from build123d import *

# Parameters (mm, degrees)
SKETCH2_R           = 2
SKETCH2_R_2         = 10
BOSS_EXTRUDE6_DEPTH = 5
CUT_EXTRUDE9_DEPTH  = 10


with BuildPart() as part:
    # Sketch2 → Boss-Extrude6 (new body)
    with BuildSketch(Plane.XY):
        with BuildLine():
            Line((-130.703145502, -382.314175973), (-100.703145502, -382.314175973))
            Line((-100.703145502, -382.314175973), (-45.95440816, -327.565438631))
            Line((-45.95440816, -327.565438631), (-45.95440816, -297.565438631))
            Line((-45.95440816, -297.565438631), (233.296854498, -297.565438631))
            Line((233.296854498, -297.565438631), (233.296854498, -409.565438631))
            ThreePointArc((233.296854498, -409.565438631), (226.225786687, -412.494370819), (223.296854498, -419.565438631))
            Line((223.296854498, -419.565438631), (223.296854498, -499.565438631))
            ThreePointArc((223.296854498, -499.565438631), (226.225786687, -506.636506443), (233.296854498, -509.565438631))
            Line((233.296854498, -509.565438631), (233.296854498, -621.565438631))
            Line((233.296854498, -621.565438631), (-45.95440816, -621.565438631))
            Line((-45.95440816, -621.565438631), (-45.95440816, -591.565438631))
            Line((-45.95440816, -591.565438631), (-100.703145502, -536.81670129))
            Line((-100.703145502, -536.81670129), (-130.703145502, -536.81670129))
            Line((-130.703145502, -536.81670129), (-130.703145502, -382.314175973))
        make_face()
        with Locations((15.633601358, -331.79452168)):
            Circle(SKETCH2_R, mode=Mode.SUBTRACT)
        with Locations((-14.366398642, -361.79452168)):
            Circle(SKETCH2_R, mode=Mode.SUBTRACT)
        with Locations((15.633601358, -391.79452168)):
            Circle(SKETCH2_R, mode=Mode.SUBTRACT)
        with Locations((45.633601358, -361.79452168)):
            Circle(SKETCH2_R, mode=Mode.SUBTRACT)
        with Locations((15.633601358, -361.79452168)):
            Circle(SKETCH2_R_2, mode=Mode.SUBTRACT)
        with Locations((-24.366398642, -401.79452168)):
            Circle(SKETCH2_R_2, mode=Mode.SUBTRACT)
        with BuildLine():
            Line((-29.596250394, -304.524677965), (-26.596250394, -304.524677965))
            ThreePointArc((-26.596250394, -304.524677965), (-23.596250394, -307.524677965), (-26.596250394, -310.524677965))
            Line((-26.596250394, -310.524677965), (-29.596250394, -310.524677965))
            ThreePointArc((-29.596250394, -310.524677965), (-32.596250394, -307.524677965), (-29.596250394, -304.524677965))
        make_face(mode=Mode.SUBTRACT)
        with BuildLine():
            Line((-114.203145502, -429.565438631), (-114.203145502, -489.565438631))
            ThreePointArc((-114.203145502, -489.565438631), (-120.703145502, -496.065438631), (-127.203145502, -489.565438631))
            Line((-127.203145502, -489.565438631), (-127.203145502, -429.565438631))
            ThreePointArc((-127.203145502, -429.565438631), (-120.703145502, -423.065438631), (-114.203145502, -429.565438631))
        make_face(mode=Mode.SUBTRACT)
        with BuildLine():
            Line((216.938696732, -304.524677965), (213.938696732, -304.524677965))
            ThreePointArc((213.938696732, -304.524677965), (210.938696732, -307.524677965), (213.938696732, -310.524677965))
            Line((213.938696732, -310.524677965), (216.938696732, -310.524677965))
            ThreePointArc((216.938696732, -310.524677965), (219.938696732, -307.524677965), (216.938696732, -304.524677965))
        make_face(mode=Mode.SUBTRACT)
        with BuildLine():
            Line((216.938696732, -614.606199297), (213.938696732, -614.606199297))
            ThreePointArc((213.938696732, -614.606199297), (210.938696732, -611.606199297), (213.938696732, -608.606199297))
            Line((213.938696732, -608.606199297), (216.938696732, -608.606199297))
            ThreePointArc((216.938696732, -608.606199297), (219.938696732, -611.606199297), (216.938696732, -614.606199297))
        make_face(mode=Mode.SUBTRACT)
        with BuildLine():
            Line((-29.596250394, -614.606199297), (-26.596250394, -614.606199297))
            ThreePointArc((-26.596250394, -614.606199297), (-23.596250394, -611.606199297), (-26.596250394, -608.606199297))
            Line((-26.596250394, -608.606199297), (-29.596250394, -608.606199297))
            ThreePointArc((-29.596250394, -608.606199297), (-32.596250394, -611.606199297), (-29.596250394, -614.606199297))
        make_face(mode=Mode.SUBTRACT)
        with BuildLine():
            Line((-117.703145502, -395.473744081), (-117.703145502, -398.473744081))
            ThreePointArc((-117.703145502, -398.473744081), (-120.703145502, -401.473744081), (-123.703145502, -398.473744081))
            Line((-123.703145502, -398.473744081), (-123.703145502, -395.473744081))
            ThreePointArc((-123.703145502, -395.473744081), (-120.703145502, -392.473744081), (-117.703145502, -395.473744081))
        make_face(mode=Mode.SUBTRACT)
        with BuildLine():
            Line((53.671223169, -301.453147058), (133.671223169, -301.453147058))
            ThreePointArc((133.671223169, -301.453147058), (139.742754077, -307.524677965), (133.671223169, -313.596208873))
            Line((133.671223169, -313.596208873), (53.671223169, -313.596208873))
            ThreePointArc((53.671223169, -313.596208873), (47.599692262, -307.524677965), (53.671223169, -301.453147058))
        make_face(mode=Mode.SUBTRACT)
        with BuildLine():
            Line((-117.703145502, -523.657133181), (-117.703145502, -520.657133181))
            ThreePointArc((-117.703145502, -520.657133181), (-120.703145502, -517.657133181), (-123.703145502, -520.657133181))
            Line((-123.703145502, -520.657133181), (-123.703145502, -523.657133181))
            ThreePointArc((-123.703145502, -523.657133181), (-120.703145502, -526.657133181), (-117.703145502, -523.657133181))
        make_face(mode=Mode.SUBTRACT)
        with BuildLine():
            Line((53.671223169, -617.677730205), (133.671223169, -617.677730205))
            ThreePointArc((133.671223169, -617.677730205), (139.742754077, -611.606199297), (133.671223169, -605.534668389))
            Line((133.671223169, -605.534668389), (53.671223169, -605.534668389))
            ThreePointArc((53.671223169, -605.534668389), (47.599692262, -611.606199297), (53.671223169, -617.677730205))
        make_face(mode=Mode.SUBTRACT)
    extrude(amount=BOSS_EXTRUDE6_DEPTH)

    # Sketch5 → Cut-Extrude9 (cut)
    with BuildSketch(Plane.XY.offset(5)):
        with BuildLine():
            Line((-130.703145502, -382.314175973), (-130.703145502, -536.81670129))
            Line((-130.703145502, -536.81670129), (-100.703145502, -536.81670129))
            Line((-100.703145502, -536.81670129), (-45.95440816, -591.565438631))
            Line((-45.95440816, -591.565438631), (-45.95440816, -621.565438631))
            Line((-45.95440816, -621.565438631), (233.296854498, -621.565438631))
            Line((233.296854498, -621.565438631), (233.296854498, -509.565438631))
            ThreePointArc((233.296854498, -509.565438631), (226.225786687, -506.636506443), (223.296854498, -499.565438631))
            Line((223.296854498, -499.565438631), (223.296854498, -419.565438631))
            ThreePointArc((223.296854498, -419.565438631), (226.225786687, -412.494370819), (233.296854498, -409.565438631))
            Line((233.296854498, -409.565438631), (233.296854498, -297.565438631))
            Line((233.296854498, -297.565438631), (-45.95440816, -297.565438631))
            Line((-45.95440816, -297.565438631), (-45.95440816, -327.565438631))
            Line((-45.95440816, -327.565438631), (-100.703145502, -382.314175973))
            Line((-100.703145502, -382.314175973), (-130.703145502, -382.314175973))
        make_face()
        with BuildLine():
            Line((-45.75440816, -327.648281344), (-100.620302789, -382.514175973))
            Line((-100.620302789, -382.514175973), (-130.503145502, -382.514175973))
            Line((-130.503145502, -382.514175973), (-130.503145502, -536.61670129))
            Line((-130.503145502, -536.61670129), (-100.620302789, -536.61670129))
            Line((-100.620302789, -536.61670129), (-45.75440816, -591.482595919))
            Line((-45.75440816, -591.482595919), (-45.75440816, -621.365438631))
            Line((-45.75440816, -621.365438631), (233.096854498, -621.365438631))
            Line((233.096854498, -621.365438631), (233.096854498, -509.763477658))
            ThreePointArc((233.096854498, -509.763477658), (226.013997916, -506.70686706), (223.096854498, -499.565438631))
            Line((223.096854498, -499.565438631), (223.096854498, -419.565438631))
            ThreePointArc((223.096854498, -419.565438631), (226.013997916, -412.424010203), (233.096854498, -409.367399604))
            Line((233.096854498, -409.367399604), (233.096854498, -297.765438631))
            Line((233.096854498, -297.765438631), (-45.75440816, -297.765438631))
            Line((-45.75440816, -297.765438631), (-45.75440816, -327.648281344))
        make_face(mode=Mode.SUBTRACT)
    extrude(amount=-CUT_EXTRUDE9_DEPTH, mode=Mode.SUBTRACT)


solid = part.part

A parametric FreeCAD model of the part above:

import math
import FreeCAD as App
import Part
import Sketcher

doc = App.newDocument("Part")
params = doc.addObject("Spreadsheet::Sheet", "Params")
for row, (alias, value) in enumerate([
    ("sketch1_diameter", "4 mm"),
    ("sketch1_diameter2", "20 mm"),
    ("sketch1_radius", "3 mm"),
    ("sketch1_radius2", "6.5 mm"),
    ("sketch1_width", "30 mm"),
    ("pad1_length", "5 mm"),
    ("sketch2_radius", "10 mm"),
    ("sketch2_radius2", "10.2 mm"),
    ("sketch2_width", "30 mm"),
    ("sketch2_height", "112 mm"),
    ("sketch2_height2", "80 mm"),
    ("pocket1_length", "10 mm"),
], start=1):
    params.set(f"A{row}", alias)
    params.set(f"B{row}", "=" + value)
    params.setAlias(f"B{row}", alias)

body = doc.addObject("PartDesign::Body", "Body")

# Sketch on XY plane
sketch1 = doc.addObject("Sketcher::SketchObject", "Sketch")
body.addObject(sketch1)
sketch1.AttachmentSupport = (doc.XY_Plane, [""])
sketch1.MapMode = "FlatFace"
sketch1.addGeometry(Part.LineSegment(App.Vector(-100.703146, -382.314176, 0), App.Vector(-130.703146, -382.314176, 0)), False)
sketch1.addGeometry(Part.LineSegment(App.Vector(-130.703146, -382.314176, 0), App.Vector(-130.703146, -536.816701, 0)), False)
sketch1.addGeometry(Part.LineSegment(App.Vector(-130.703146, -536.816701, 0), App.Vector(-100.703146, -536.816701, 0)), False)
sketch1.addGeometry(Part.LineSegment(App.Vector(-100.703146, -536.816701, 0), App.Vector(-45.954408, -591.565439, 0)), False)
sketch1.addGeometry(Part.LineSegment(App.Vector(-45.954408, -591.565439, 0), App.Vector(-45.954408, -621.565439, 0)), False)
sketch1.addGeometry(Part.LineSegment(App.Vector(-45.954408, -621.565439, 0), App.Vector(233.296854, -621.565439, 0)), False)
sketch1.addGeometry(Part.LineSegment(App.Vector(233.296854, -621.565439, 0), App.Vector(233.296854, -509.565439, 0)), False)
sketch1.addGeometry(Part.ArcOfCircle(Part.Circle(App.Vector(233.296854, -499.565439, 0), App.Vector(0, 0, 1), 10), math.radians(-180), math.radians(-90)), False)
sketch1.addGeometry(Part.LineSegment(App.Vector(223.296854, -499.565439, 0), App.Vector(223.296854, -419.565439, 0)), False)
sketch1.addGeometry(Part.ArcOfCircle(Part.Circle(App.Vector(233.296854, -419.565439, 0), App.Vector(0, 0, 1), 10), math.radians(90), math.radians(180)), False)
sketch1.addGeometry(Part.LineSegment(App.Vector(233.296854, -409.565439, 0), App.Vector(233.296854, -297.565439, 0)), False)
sketch1.addGeometry(Part.LineSegment(App.Vector(233.296854, -297.565439, 0), App.Vector(-45.954408, -297.565439, 0)), False)
sketch1.addGeometry(Part.LineSegment(App.Vector(-45.954408, -297.565439, 0), App.Vector(-45.954408, -327.565439, 0)), False)
sketch1.addGeometry(Part.LineSegment(App.Vector(-45.954408, -327.565439, 0), App.Vector(-100.703146, -382.314176, 0)), False)
sketch1.addGeometry(Part.LineSegment(App.Vector(216.938697, -614.606199, 0), App.Vector(213.938697, -614.606199, 0)), False)
sketch1.addGeometry(Part.ArcOfCircle(Part.Circle(App.Vector(213.938697, -611.606199, 0), App.Vector(0, 0, 1), 3), math.radians(90), math.radians(270)), False)
sketch1.addGeometry(Part.LineSegment(App.Vector(213.938697, -608.606199, 0), App.Vector(216.938697, -608.606199, 0)), False)
sketch1.addGeometry(Part.ArcOfCircle(Part.Circle(App.Vector(216.938697, -611.606199, 0), App.Vector(0, 0, 1), 3), math.radians(-90), math.radians(90)), False)
sketch1.addGeometry(Part.ArcOfCircle(Part.Circle(App.Vector(53.671223, -611.606199, 0), App.Vector(0, 0, 1), 6.071531), math.radians(90), math.radians(270)), False)
sketch1.addGeometry(Part.LineSegment(App.Vector(53.671223, -605.534668, 0), App.Vector(133.671223, -605.534668, 0)), False)
sketch1.addGeometry(Part.ArcOfCircle(Part.Circle(App.Vector(133.671223, -611.606199, 0), App.Vector(0, 0, 1), 6.071531), math.radians(-90), math.radians(90)), False)
sketch1.addGeometry(Part.LineSegment(App.Vector(133.671223, -617.67773, 0), App.Vector(53.671223, -617.67773, 0)), False)
sketch1.addGeometry(Part.ArcOfCircle(Part.Circle(App.Vector(-29.59625, -611.606199, 0), App.Vector(0, 0, 1), 3), math.radians(90), math.radians(270)), False)
sketch1.addGeometry(Part.LineSegment(App.Vector(-29.59625, -608.606199, 0), App.Vector(-26.59625, -608.606199, 0)), False)
sketch1.addGeometry(Part.ArcOfCircle(Part.Circle(App.Vector(-26.59625, -611.606199, 0), App.Vector(0, 0, 1), 3), math.radians(-90), math.radians(90)), False)
sketch1.addGeometry(Part.LineSegment(App.Vector(-26.59625, -614.606199, 0), App.Vector(-29.59625, -614.606199, 0)), False)
sketch1.addGeometry(Part.ArcOfCircle(Part.Circle(App.Vector(-120.703146, -523.657133, 0), App.Vector(0, 0, 1), 3), math.radians(180), math.radians(360)), False)
sketch1.addGeometry(Part.LineSegment(App.Vector(-123.703146, -523.657133, 0), App.Vector(-123.703146, -520.657133, 0)), False)
sketch1.addGeometry(Part.ArcOfCircle(Part.Circle(App.Vector(-120.703146, -520.657133, 0), App.Vector(0, 0, 1), 3), math.radians(0), math.radians(180)), False)
sketch1.addGeometry(Part.LineSegment(App.Vector(-117.703146, -520.657133, 0), App.Vector(-117.703146, -523.657133, 0)), False)
sketch1.addGeometry(Part.ArcOfCircle(Part.Circle(App.Vector(216.938697, -307.524678, 0), App.Vector(0, 0, 1), 3), math.radians(-90), math.radians(90)), False)
sketch1.addGeometry(Part.LineSegment(App.Vector(216.938697, -310.524678, 0), App.Vector(213.938697, -310.524678, 0)), False)
sketch1.addGeometry(Part.ArcOfCircle(Part.Circle(App.Vector(213.938697, -307.524678, 0), App.Vector(0, 0, 1), 3), math.radians(90), math.radians(270)), False)
sketch1.addGeometry(Part.LineSegment(App.Vector(213.938697, -304.524678, 0), App.Vector(216.938697, -304.524678, 0)), False)
sketch1.addGeometry(Part.LineSegment(App.Vector(53.671223, -301.453147, 0), App.Vector(133.671223, -301.453147, 0)), False)
sketch1.addGeometry(Part.ArcOfCircle(Part.Circle(App.Vector(133.671223, -307.524678, 0), App.Vector(0, 0, 1), 6.071531), math.radians(-90), math.radians(90)), False)
sketch1.addGeometry(Part.LineSegment(App.Vector(133.671223, -313.596209, 0), App.Vector(53.671223, -313.596209, 0)), False)
sketch1.addGeometry(Part.ArcOfCircle(Part.Circle(App.Vector(53.671223, -307.524678, 0), App.Vector(0, 0, 1), 6.071531), math.radians(90), math.radians(270)), False)
sketch1.addGeometry(Part.Circle(App.Vector(15.633601, -391.794522, 0), App.Vector(0, 0, 1), 2), False)
sketch1.addGeometry(Part.Circle(App.Vector(-24.366399, -401.794522, 0), App.Vector(0, 0, 1), 10), False)
sketch1.addGeometry(Part.LineSegment(App.Vector(-114.203146, -429.565439, 0), App.Vector(-114.203146, -489.565439, 0)), False)
sketch1.addGeometry(Part.ArcOfCircle(Part.Circle(App.Vector(-120.703146, -489.565439, 0), App.Vector(0, 0, 1), 6.5), math.radians(180), math.radians(360)), False)
sketch1.addGeometry(Part.LineSegment(App.Vector(-127.203146, -489.565439, 0), App.Vector(-127.203146, -429.565439, 0)), False)
sketch1.addGeometry(Part.ArcOfCircle(Part.Circle(App.Vector(-120.703146, -429.565439, 0), App.Vector(0, 0, 1), 6.5), math.radians(0), math.radians(180)), False)
sketch1.addGeometry(Part.LineSegment(App.Vector(-117.703146, -395.473744, 0), App.Vector(-117.703146, -398.473744, 0)), False)
sketch1.addGeometry(Part.ArcOfCircle(Part.Circle(App.Vector(-120.703146, -398.473744, 0), App.Vector(0, 0, 1), 3), math.radians(180), math.radians(360)), False)
sketch1.addGeometry(Part.LineSegment(App.Vector(-123.703146, -398.473744, 0), App.Vector(-123.703146, -395.473744, 0)), False)
sketch1.addGeometry(Part.ArcOfCircle(Part.Circle(App.Vector(-120.703146, -395.473744, 0), App.Vector(0, 0, 1), 3), math.radians(0), math.radians(180)), False)
sketch1.addGeometry(Part.Circle(App.Vector(45.633601, -361.794522, 0), App.Vector(0, 0, 1), 2), False)
sketch1.addGeometry(Part.Circle(App.Vector(15.633601, -361.794522, 0), App.Vector(0, 0, 1), 10), False)
sketch1.addGeometry(Part.Circle(App.Vector(-14.366399, -361.794522, 0), App.Vector(0, 0, 1), 2), False)
sketch1.addGeometry(Part.Circle(App.Vector(15.633601, -331.794522, 0), App.Vector(0, 0, 1), 2), False)
sketch1.addGeometry(Part.LineSegment(App.Vector(-29.59625, -304.524678, 0), App.Vector(-26.59625, -304.524678, 0)), False)
sketch1.addGeometry(Part.ArcOfCircle(Part.Circle(App.Vector(-26.59625, -307.524678, 0), App.Vector(0, 0, 1), 3), math.radians(-90), math.radians(90)), False)
sketch1.addGeometry(Part.LineSegment(App.Vector(-26.59625, -310.524678, 0), App.Vector(-29.59625, -310.524678, 0)), False)
sketch1.addGeometry(Part.ArcOfCircle(Part.Circle(App.Vector(-29.59625, -307.524678, 0), App.Vector(0, 0, 1), 3), math.radians(90), math.radians(270)), False)
sketch1.addConstraint(Sketcher.Constraint("Coincident", 0, 2, 1, 1))
sketch1.addConstraint(Sketcher.Constraint("Coincident", 1, 2, 2, 1))
sketch1.addConstraint(Sketcher.Constraint("Coincident", 2, 2, 3, 1))
sketch1.addConstraint(Sketcher.Constraint("Coincident", 3, 2, 4, 1))
sketch1.addConstraint(Sketcher.Constraint("Coincident", 4, 2, 5, 1))
sketch1.addConstraint(Sketcher.Constraint("Coincident", 5, 2, 6, 1))
sketch1.addConstraint(Sketcher.Constraint("Coincident", 6, 2, 7, 2))
sketch1.addConstraint(Sketcher.Constraint("Tangent", 7, 1, 8, 1))
sketch1.addConstraint(Sketcher.Constraint("Tangent", 8, 2, 9, 2))
sketch1.addConstraint(Sketcher.Constraint("Coincident", 9, 1, 10, 1))
sketch1.addConstraint(Sketcher.Constraint("Coincident", 10, 2, 11, 1))
sketch1.addConstraint(Sketcher.Constraint("Coincident", 11, 2, 12, 1))
sketch1.addConstraint(Sketcher.Constraint("Coincident", 12, 2, 13, 1))
sketch1.addConstraint(Sketcher.Constraint("Coincident", 13, 2, 0, 1))
sketch1.addConstraint(Sketcher.Constraint("Tangent", 14, 2, 15, 2))
sketch1.addConstraint(Sketcher.Constraint("Tangent", 15, 1, 16, 1))
sketch1.addConstraint(Sketcher.Constraint("Tangent", 16, 2, 17, 2))
sketch1.addConstraint(Sketcher.Constraint("Tangent", 17, 1, 14, 1))
sketch1.addConstraint(Sketcher.Constraint("Tangent", 18, 1, 19, 1))
sketch1.addConstraint(Sketcher.Constraint("Tangent", 19, 2, 20, 2))
sketch1.addConstraint(Sketcher.Constraint("Tangent", 20, 1, 21, 1))
sketch1.addConstraint(Sketcher.Constraint("Tangent", 21, 2, 18, 2))
sketch1.addConstraint(Sketcher.Constraint("Tangent", 22, 1, 23, 1))
sketch1.addConstraint(Sketcher.Constraint("Tangent", 23, 2, 24, 2))
sketch1.addConstraint(Sketcher.Constraint("Tangent", 24, 1, 25, 1))
sketch1.addConstraint(Sketcher.Constraint("Tangent", 25, 2, 22, 2))
sketch1.addConstraint(Sketcher.Constraint("Tangent", 26, 1, 27, 1))
sketch1.addConstraint(Sketcher.Constraint("Tangent", 27, 2, 28, 2))
sketch1.addConstraint(Sketcher.Constraint("Tangent", 28, 1, 29, 1))
sketch1.addConstraint(Sketcher.Constraint("Tangent", 29, 2, 26, 2))
sketch1.addConstraint(Sketcher.Constraint("Tangent", 30, 1, 31, 1))
sketch1.addConstraint(Sketcher.Constraint("Tangent", 31, 2, 32, 2))
sketch1.addConstraint(Sketcher.Constraint("Tangent", 32, 1, 33, 1))
sketch1.addConstraint(Sketcher.Constraint("Tangent", 33, 2, 30, 2))
sketch1.addConstraint(Sketcher.Constraint("Tangent", 34, 2, 35, 2))
sketch1.addConstraint(Sketcher.Constraint("Tangent", 35, 1, 36, 1))
sketch1.addConstraint(Sketcher.Constraint("Tangent", 36, 2, 37, 2))
sketch1.addConstraint(Sketcher.Constraint("Tangent", 37, 1, 34, 1))
sketch1.addConstraint(Sketcher.Constraint("Tangent", 40, 2, 41, 2))
sketch1.addConstraint(Sketcher.Constraint("Tangent", 41, 1, 42, 1))
sketch1.addConstraint(Sketcher.Constraint("Tangent", 42, 2, 43, 2))
sketch1.addConstraint(Sketcher.Constraint("Tangent", 43, 1, 40, 1))
sketch1.addConstraint(Sketcher.Constraint("Tangent", 44, 2, 45, 2))
sketch1.addConstraint(Sketcher.Constraint("Tangent", 45, 1, 46, 1))
sketch1.addConstraint(Sketcher.Constraint("Tangent", 46, 2, 47, 2))
sketch1.addConstraint(Sketcher.Constraint("Tangent", 47, 1, 44, 1))
sketch1.addConstraint(Sketcher.Constraint("Tangent", 52, 2, 53, 2))
sketch1.addConstraint(Sketcher.Constraint("Tangent", 53, 1, 54, 1))
sketch1.addConstraint(Sketcher.Constraint("Tangent", 54, 2, 55, 2))
sketch1.addConstraint(Sketcher.Constraint("Tangent", 55, 1, 52, 1))
sketch1.addConstraint(Sketcher.Constraint("Horizontal", 0))
sketch1.addConstraint(Sketcher.Constraint("Vertical", 1))
sketch1.addConstraint(Sketcher.Constraint("Horizontal", 2))
sketch1.addConstraint(Sketcher.Constraint("Vertical", 4))
sketch1.addConstraint(Sketcher.Constraint("Horizontal", 5))
sketch1.addConstraint(Sketcher.Constraint("Vertical", 6))
sketch1.addConstraint(Sketcher.Constraint("Vertical", 8))
sketch1.addConstraint(Sketcher.Constraint("Vertical", 10))
sketch1.addConstraint(Sketcher.Constraint("Horizontal", 11))
sketch1.addConstraint(Sketcher.Constraint("Vertical", 12))
sketch1.addConstraint(Sketcher.Constraint("Horizontal", 14))
sketch1.addConstraint(Sketcher.Constraint("Horizontal", 16))
sketch1.addConstraint(Sketcher.Constraint("Horizontal", 19))
sketch1.addConstraint(Sketcher.Constraint("Horizontal", 21))
sketch1.addConstraint(Sketcher.Constraint("Horizontal", 23))
sketch1.addConstraint(Sketcher.Constraint("Horizontal", 25))
sketch1.addConstraint(Sketcher.Constraint("Vertical", 27))
sketch1.addConstraint(Sketcher.Constraint("Vertical", 29))
sketch1.addConstraint(Sketcher.Constraint("Horizontal", 31))
sketch1.addConstraint(Sketcher.Constraint("Horizontal", 33))
sketch1.addConstraint(Sketcher.Constraint("Horizontal", 34))
sketch1.addConstraint(Sketcher.Constraint("Horizontal", 36))
sketch1.addConstraint(Sketcher.Constraint("Vertical", 40))
sketch1.addConstraint(Sketcher.Constraint("Vertical", 42))
sketch1.addConstraint(Sketcher.Constraint("Vertical", 44))
sketch1.addConstraint(Sketcher.Constraint("Vertical", 46))
sketch1.addConstraint(Sketcher.Constraint("Horizontal", 52))
sketch1.addConstraint(Sketcher.Constraint("Horizontal", 54))
sketch1.addConstraint(Sketcher.Constraint("Equal", 7, 9))
sketch1.addConstraint(Sketcher.Constraint("Equal", 17, 22))
sketch1.addConstraint(Sketcher.Constraint("Equal", 24, 26))
sketch1.addConstraint(Sketcher.Constraint("Equal", 28, 30))
sketch1.addConstraint(Sketcher.Constraint("Equal", 20, 35))
sketch1.addConstraint(Sketcher.Constraint("Equal", 9, 39))
sketch1.addConstraint(Sketcher.Constraint("Equal", 32, 45))
sketch1.addConstraint(Sketcher.Constraint("Equal", 38, 48))
sketch1.addConstraint(Sketcher.Constraint("Equal", 39, 49))
sketch1.addConstraint(Sketcher.Constraint("Equal", 48, 50))
sketch1.addConstraint(Sketcher.Constraint("Equal", 50, 51))
sketch1.addConstraint(Sketcher.Constraint("Equal", 47, 53))
sketch1.addConstraint(Sketcher.Constraint("Perpendicular", 3, 13))
sketch1.addConstraint(Sketcher.Constraint("Horizontal", 17, 3, 18, 3))
sketch1.addConstraint(Sketcher.Constraint("Horizontal", 20, 3, 22, 3))
sketch1.addConstraint(Sketcher.Constraint("Horizontal", 32, 3, 35, 3))
sketch1.addConstraint(Sketcher.Constraint("Horizontal", 48, 3, 49, 3))
sketch1.addConstraint(Sketcher.Constraint("Horizontal", 49, 3, 50, 3))
sketch1.addConstraint(Sketcher.Constraint("Horizontal", 37, 3, 53, 3))
sketch1.addConstraint(Sketcher.Constraint("Vertical", 17, 3, 30, 3))
sketch1.addConstraint(Sketcher.Constraint("Vertical", 15, 3, 32, 3))
sketch1.addConstraint(Sketcher.Constraint("Vertical", 20, 3, 35, 3))
sketch1.addConstraint(Sketcher.Constraint("Vertical", 18, 3, 37, 3))
sketch1.addConstraint(Sketcher.Constraint("Vertical", 28, 3, 41, 3))
sketch1.addConstraint(Sketcher.Constraint("Vertical", 43, 3, 45, 3))
sketch1.addConstraint(Sketcher.Constraint("Vertical", 38, 3, 49, 3))
sketch1.addConstraint(Sketcher.Constraint("Vertical", 49, 3, 51, 3))
sketch1.addConstraint(Sketcher.Constraint("Vertical", 24, 3, 53, 3))
sketch1.addConstraint(Sketcher.Constraint("Vertical", 22, 3, 55, 3))
sketch1.addConstraint(Sketcher.Constraint("Vertical", 9, 3, 5, 2))
sketch1.addConstraint(Sketcher.Constraint("Vertical", 6, 2, 9, 1))
sketch1.addConstraint(Sketcher.Constraint("Vertical", 4, 2, 11, 2))
sketch1.addConstraint(Sketcher.Constraint("Vertical", 2, 2, 13, 2))
sketch1.addConstraint(Sketcher.Constraint("Equal", 16, 23))
sketch1.addConstraint(Sketcher.Constraint("Equal", 2, 4))
sketch1.addConstraint(Sketcher.Constraint("Equal", 36, 8))
sketch1.addConstraint(Sketcher.Constraint("Equal", 6, 10))
sketch1.addConstraint(Sketcher.Constraint("Equal", 4, 12))
sketch1.addConstraint(Sketcher.Constraint("Equal", 54, 27))
sketch1.addConstraint(Sketcher.Constraint("Equal", 29, 44))
sketch1.addConstraint(Sketcher.Constraint("Equal", 3, 13))
sketch1.addConstraint(Sketcher.Constraint("Diameter", 38, 4.0))
sketch1.addConstraint(Sketcher.Constraint("Diameter", 39, 20.0))
sketch1.addConstraint(Sketcher.Constraint("Radius", 15, 3.0))
sketch1.addConstraint(Sketcher.Constraint("Radius", 41, 6.5))
sketch1.addConstraint(Sketcher.Constraint("DistanceX", 0, 2, 0, 1, 30.0))
sketch1.addConstraint(Sketcher.Constraint("DistanceX", 14, 2, 14, 1, 3.0))
sketch1.addConstraint(Sketcher.Constraint("DistanceX", 19, 1, 19, 2, 80.0))
sketch1.addConstraint(Sketcher.Constraint("DistanceY", 6, 1, 6, 2, 112.0))
sketch1.addConstraint(Sketcher.Constraint("DistanceY", 40, 2, 40, 1, 60.0))
sketch1.addConstraint(Sketcher.Constraint("Radius", 18, 6.071531))
sketch1.addConstraint(Sketcher.Constraint("DistanceY", 15, 3, -1, 1, 611.606199))
sketch1.addConstraint(Sketcher.Constraint("DistanceX", -1, 1, 38, 3, 15.633601))
sketch1.addConstraint(Sketcher.Constraint("DistanceX", 39, 3, -1, 1, 24.366399))
sketch1.addConstraint(Sketcher.Constraint("DistanceX", -1, 1, 48, 3, 45.633601))
sketch1.addConstraint(Sketcher.Constraint("DistanceX", 50, 3, -1, 1, 14.366399))
sketch1.addConstraint(Sketcher.Constraint("DistanceY", 1, 2, -1, 1, 536.816701))
sketch1.addConstraint(Sketcher.Constraint("DistanceX", 5, 1, 5, 2, 279.251263))
sketch1.addConstraint(Sketcher.Constraint("DistanceY", 1, 2, 1, 1, 154.502525))
sketch1.addConstraint(Sketcher.Constraint("DistanceX", 22, 3, -1, 1, 29.59625))
sketch1.addConstraint(Sketcher.Constraint("DistanceY", 38, 3, -1, 1, 391.794522))
sketch1.addConstraint(Sketcher.Constraint("DistanceY", 39, 3, -1, 1, 401.794522))
sketch1.addConstraint(Sketcher.Constraint("DistanceY", 41, 3, -1, 1, 489.565439))
sketch1.addConstraint(Sketcher.Constraint("DistanceY", 48, 3, -1, 1, 361.794522))
sketch1.addConstraint(Sketcher.Constraint("DistanceY", 51, 3, -1, 1, 331.794522))
sketch1.addConstraint(Sketcher.Constraint("DistanceX", 3, 2, -1, 1, 45.954408))
sketch1.addConstraint(Sketcher.Constraint("DistanceY", 35, 1, -1, 1, 313.596209))
sketch1.addConstraint(Sketcher.Constraint("DistanceX", -1, 1, 15, 3, 213.938697))
sketch1.addConstraint(Sketcher.Constraint("DistanceX", -1, 1, 18, 3, 53.671223))
sketch1.addConstraint(Sketcher.Constraint("DistanceX", 26, 3, -1, 1, 120.703146))
sketch1.addConstraint(Sketcher.Constraint("DistanceY", 26, 3, -1, 1, 523.657133))
sketch1.addConstraint(Sketcher.Constraint("DistanceY", 45, 3, -1, 1, 398.473744))
sketch1.setExpression("Constraints[119]", "Params.sketch1_diameter")
sketch1.setExpression("Constraints[120]", "Params.sketch1_diameter2")
sketch1.setExpression("Constraints[121]", "Params.sketch1_radius")
sketch1.setExpression("Constraints[122]", "Params.sketch1_radius2")
sketch1.setExpression("Constraints[123]", "Params.sketch1_width")
pad1 = doc.addObject("PartDesign::Pad", "Pad")
body.addObject(pad1)
pad1.Profile = sketch1
pad1.setExpression("Length", "Params.pad1_length")

# Sketch on XY plane
sketch2 = doc.addObject("Sketcher::SketchObject", "Sketch001")
body.addObject(sketch2)
sketch2.AttachmentSupport = (doc.XY_Plane, [""])
sketch2.MapMode = "FlatFace"
sketch2.AttachmentOffset = App.Placement(App.Vector(0, 0, 5), App.Rotation())
sketch2.addGeometry(Part.LineSegment(App.Vector(-130.703146, -382.314176, 0), App.Vector(-130.703146, -536.816701, 0)), False)
sketch2.addGeometry(Part.LineSegment(App.Vector(-130.703146, -536.816701, 0), App.Vector(-100.703146, -536.816701, 0)), False)
sketch2.addGeometry(Part.LineSegment(App.Vector(-100.703146, -536.816701, 0), App.Vector(-45.954408, -591.565439, 0)), False)
sketch2.addGeometry(Part.LineSegment(App.Vector(-45.954408, -591.565439, 0), App.Vector(-45.954408, -621.565439, 0)), False)
sketch2.addGeometry(Part.LineSegment(App.Vector(-45.954408, -621.565439, 0), App.Vector(233.296854, -621.565439, 0)), False)
sketch2.addGeometry(Part.LineSegment(App.Vector(233.296854, -621.565439, 0), App.Vector(233.296854, -509.565439, 0)), False)
sketch2.addGeometry(Part.ArcOfCircle(Part.Circle(App.Vector(233.296854, -499.565439, 0), App.Vector(0, 0, 1), 10), math.radians(-180), math.radians(-90)), False)
sketch2.addGeometry(Part.LineSegment(App.Vector(223.296854, -499.565439, 0), App.Vector(223.296854, -419.565439, 0)), False)
sketch2.addGeometry(Part.ArcOfCircle(Part.Circle(App.Vector(233.296854, -419.565439, 0), App.Vector(0, 0, 1), 10), math.radians(90), math.radians(180)), False)
sketch2.addGeometry(Part.LineSegment(App.Vector(233.296854, -409.565439, 0), App.Vector(233.296854, -297.565439, 0)), False)
sketch2.addGeometry(Part.LineSegment(App.Vector(233.296854, -297.565439, 0), App.Vector(-45.954408, -297.565439, 0)), False)
sketch2.addGeometry(Part.LineSegment(App.Vector(-45.954408, -297.565439, 0), App.Vector(-45.954408, -327.565439, 0)), False)
sketch2.addGeometry(Part.LineSegment(App.Vector(-45.954408, -327.565439, 0), App.Vector(-100.703146, -382.314176, 0)), False)
sketch2.addGeometry(Part.LineSegment(App.Vector(-100.703146, -382.314176, 0), App.Vector(-130.703146, -382.314176, 0)), False)
sketch2.addGeometry(Part.LineSegment(App.Vector(-100.620303, -382.514176, 0), App.Vector(-45.754408, -327.648281, 0)), False)
sketch2.addGeometry(Part.LineSegment(App.Vector(-45.754408, -327.648281, 0), App.Vector(-45.754408, -297.765439, 0)), False)
sketch2.addGeometry(Part.LineSegment(App.Vector(-45.754408, -297.765439, 0), App.Vector(233.096854, -297.765439, 0)), False)
sketch2.addGeometry(Part.LineSegment(App.Vector(233.096854, -297.765439, 0), App.Vector(233.096854, -409.3674, 0)), False)
sketch2.addGeometry(Part.ArcOfCircle(Part.Circle(App.Vector(233.296854, -419.565439, 0), App.Vector(0, 0, 1), 10.2), math.radians(91.123519), math.radians(180)), False)
sketch2.addGeometry(Part.LineSegment(App.Vector(223.096854, -419.565439, 0), App.Vector(223.096854, -499.565439, 0)), False)
sketch2.addGeometry(Part.ArcOfCircle(Part.Circle(App.Vector(233.296854, -499.565439, 0), App.Vector(0, 0, 1), 10.2), math.radians(180), math.radians(268.876481)), False)
sketch2.addGeometry(Part.LineSegment(App.Vector(233.096854, -509.763478, 0), App.Vector(233.096854, -621.365439, 0)), False)
sketch2.addGeometry(Part.LineSegment(App.Vector(233.096854, -621.365439, 0), App.Vector(-45.754408, -621.365439, 0)), False)
sketch2.addGeometry(Part.LineSegment(App.Vector(-45.754408, -621.365439, 0), App.Vector(-45.754408, -591.482596, 0)), False)
sketch2.addGeometry(Part.LineSegment(App.Vector(-45.754408, -591.482596, 0), App.Vector(-100.620303, -536.616701, 0)), False)
sketch2.addGeometry(Part.LineSegment(App.Vector(-100.620303, -536.616701, 0), App.Vector(-130.503146, -536.616701, 0)), False)
sketch2.addGeometry(Part.LineSegment(App.Vector(-130.503146, -536.616701, 0), App.Vector(-130.503146, -382.514176, 0)), False)
sketch2.addGeometry(Part.LineSegment(App.Vector(-130.503146, -382.514176, 0), App.Vector(-100.620303, -382.514176, 0)), False)
sketch2.addConstraint(Sketcher.Constraint("Coincident", 0, 2, 1, 1))
sketch2.addConstraint(Sketcher.Constraint("Coincident", 1, 2, 2, 1))
sketch2.addConstraint(Sketcher.Constraint("Coincident", 2, 2, 3, 1))
sketch2.addConstraint(Sketcher.Constraint("Coincident", 3, 2, 4, 1))
sketch2.addConstraint(Sketcher.Constraint("Coincident", 4, 2, 5, 1))
sketch2.addConstraint(Sketcher.Constraint("Coincident", 5, 2, 6, 2))
sketch2.addConstraint(Sketcher.Constraint("Tangent", 6, 1, 7, 1))
sketch2.addConstraint(Sketcher.Constraint("Tangent", 7, 2, 8, 2))
sketch2.addConstraint(Sketcher.Constraint("Coincident", 8, 1, 9, 1))
sketch2.addConstraint(Sketcher.Constraint("Coincident", 9, 2, 10, 1))
sketch2.addConstraint(Sketcher.Constraint("Coincident", 10, 2, 11, 1))
sketch2.addConstraint(Sketcher.Constraint("Coincident", 11, 2, 12, 1))
sketch2.addConstraint(Sketcher.Constraint("Coincident", 12, 2, 13, 1))
sketch2.addConstraint(Sketcher.Constraint("Coincident", 13, 2, 0, 1))
sketch2.addConstraint(Sketcher.Constraint("Coincident", 14, 2, 15, 1))
sketch2.addConstraint(Sketcher.Constraint("Coincident", 15, 2, 16, 1))
sketch2.addConstraint(Sketcher.Constraint("Coincident", 16, 2, 17, 1))
sketch2.addConstraint(Sketcher.Constraint("Coincident", 17, 2, 18, 1))
sketch2.addConstraint(Sketcher.Constraint("Tangent", 18, 2, 19, 1))
sketch2.addConstraint(Sketcher.Constraint("Tangent", 19, 2, 20, 1))
sketch2.addConstraint(Sketcher.Constraint("Coincident", 20, 2, 21, 1))
sketch2.addConstraint(Sketcher.Constraint("Coincident", 21, 2, 22, 1))
sketch2.addConstraint(Sketcher.Constraint("Coincident", 22, 2, 23, 1))
sketch2.addConstraint(Sketcher.Constraint("Coincident", 23, 2, 24, 1))
sketch2.addConstraint(Sketcher.Constraint("Coincident", 24, 2, 25, 1))
sketch2.addConstraint(Sketcher.Constraint("Coincident", 25, 2, 26, 1))
sketch2.addConstraint(Sketcher.Constraint("Coincident", 26, 2, 27, 1))
sketch2.addConstraint(Sketcher.Constraint("Coincident", 27, 2, 14, 1))
sketch2.addConstraint(Sketcher.Constraint("Vertical", 0))
sketch2.addConstraint(Sketcher.Constraint("Horizontal", 1))
sketch2.addConstraint(Sketcher.Constraint("Vertical", 3))
sketch2.addConstraint(Sketcher.Constraint("Horizontal", 4))
sketch2.addConstraint(Sketcher.Constraint("Vertical", 5))
sketch2.addConstraint(Sketcher.Constraint("Vertical", 7))
sketch2.addConstraint(Sketcher.Constraint("Vertical", 9))
sketch2.addConstraint(Sketcher.Constraint("Horizontal", 10))
sketch2.addConstraint(Sketcher.Constraint("Vertical", 11))
sketch2.addConstraint(Sketcher.Constraint("Horizontal", 13))
sketch2.addConstraint(Sketcher.Constraint("Vertical", 15))
sketch2.addConstraint(Sketcher.Constraint("Horizontal", 16))
sketch2.addConstraint(Sketcher.Constraint("Vertical", 17))
sketch2.addConstraint(Sketcher.Constraint("Vertical", 19))
sketch2.addConstraint(Sketcher.Constraint("Vertical", 21))
sketch2.addConstraint(Sketcher.Constraint("Horizontal", 22))
sketch2.addConstraint(Sketcher.Constraint("Vertical", 23))
sketch2.addConstraint(Sketcher.Constraint("Horizontal", 25))
sketch2.addConstraint(Sketcher.Constraint("Vertical", 26))
sketch2.addConstraint(Sketcher.Constraint("Horizontal", 27))
sketch2.addConstraint(Sketcher.Constraint("Coincident", 18, 3, 8, 3))
sketch2.addConstraint(Sketcher.Constraint("Coincident", 20, 3, 6, 3))
sketch2.addConstraint(Sketcher.Constraint("Equal", 6, 8))
sketch2.addConstraint(Sketcher.Constraint("Perpendicular", 2, 12))
sketch2.addConstraint(Sketcher.Constraint("Parallel", 12, 14))
sketch2.addConstraint(Sketcher.Constraint("Perpendicular", 14, 24))
sketch2.addConstraint(Sketcher.Constraint("Vertical", 20, 3, 4, 2))
sketch2.addConstraint(Sketcher.Constraint("Vertical", 5, 2, 8, 1))
sketch2.addConstraint(Sketcher.Constraint("Vertical", 3, 2, 10, 2))
sketch2.addConstraint(Sketcher.Constraint("Vertical", 1, 2, 12, 2))
sketch2.addConstraint(Sketcher.Constraint("Vertical", 17, 2, 20, 2))
sketch2.addConstraint(Sketcher.Constraint("Vertical", 15, 2, 22, 2))
sketch2.addConstraint(Sketcher.Constraint("Vertical", 24, 2, 27, 2))
sketch2.addConstraint(Sketcher.Constraint("Equal", 13, 3))
sketch2.addConstraint(Sketcher.Constraint("Equal", 5, 9))
sketch2.addConstraint(Sketcher.Constraint("Equal", 3, 11))
sketch2.addConstraint(Sketcher.Constraint("Equal", 27, 15))
sketch2.addConstraint(Sketcher.Constraint("Equal", 17, 21))
sketch2.addConstraint(Sketcher.Constraint("Equal", 15, 23))
sketch2.addConstraint(Sketcher.Constraint("Equal", 2, 12))
sketch2.addConstraint(Sketcher.Constraint("Radius", 6, 10.0))
sketch2.addConstraint(Sketcher.Constraint("Radius", 18, 10.2))
sketch2.addConstraint(Sketcher.Constraint("DistanceX", 1, 1, 1, 2, 30.0))
sketch2.addConstraint(Sketcher.Constraint("DistanceY", 5, 1, 5, 2, 112.0))
sketch2.addConstraint(Sketcher.Constraint("DistanceY", 7, 1, 7, 2, 80.0))
sketch2.addConstraint(Sketcher.Constraint("DistanceX", 0, 2, 20, 3, 364.0))
sketch2.addConstraint(Sketcher.Constraint("DistanceX", 18, 2, 17, 2, 10.0))
sketch2.addConstraint(Sketcher.Constraint("DistanceX", 11, 2, 14, 2, 0.2))
sketch2.addConstraint(Sketcher.Constraint("DistanceY", 15, 2, 10, 2, 0.2))
sketch2.addConstraint(Sketcher.Constraint("DistanceY", 1, 2, 24, 2, 0.2))
sketch2.addConstraint(Sketcher.Constraint("DistanceY", 0, 2, -1, 1, 536.816701))
sketch2.addConstraint(Sketcher.Constraint("DistanceY", 17, 2, -1, 1, 409.3674))
sketch2.addConstraint(Sketcher.Constraint("DistanceX", 25, 2, 25, 1, 29.882843))
sketch2.addConstraint(Sketcher.Constraint("DistanceX", 2, 2, -1, 1, 45.954408))
sketch2.setExpression("Constraints[68]", "Params.sketch2_radius")
sketch2.setExpression("Constraints[69]", "Params.sketch2_radius2")
sketch2.setExpression("Constraints[70]", "Params.sketch2_width")
sketch2.setExpression("Constraints[71]", "Params.sketch2_height")
sketch2.setExpression("Constraints[72]", "Params.sketch2_height2")
pocket1 = doc.addObject("PartDesign::Pocket", "Pocket")
body.addObject(pocket1)
pocket1.Profile = sketch2
pocket1.setExpression("Length", "Params.pocket1_length")

doc.recompute()
